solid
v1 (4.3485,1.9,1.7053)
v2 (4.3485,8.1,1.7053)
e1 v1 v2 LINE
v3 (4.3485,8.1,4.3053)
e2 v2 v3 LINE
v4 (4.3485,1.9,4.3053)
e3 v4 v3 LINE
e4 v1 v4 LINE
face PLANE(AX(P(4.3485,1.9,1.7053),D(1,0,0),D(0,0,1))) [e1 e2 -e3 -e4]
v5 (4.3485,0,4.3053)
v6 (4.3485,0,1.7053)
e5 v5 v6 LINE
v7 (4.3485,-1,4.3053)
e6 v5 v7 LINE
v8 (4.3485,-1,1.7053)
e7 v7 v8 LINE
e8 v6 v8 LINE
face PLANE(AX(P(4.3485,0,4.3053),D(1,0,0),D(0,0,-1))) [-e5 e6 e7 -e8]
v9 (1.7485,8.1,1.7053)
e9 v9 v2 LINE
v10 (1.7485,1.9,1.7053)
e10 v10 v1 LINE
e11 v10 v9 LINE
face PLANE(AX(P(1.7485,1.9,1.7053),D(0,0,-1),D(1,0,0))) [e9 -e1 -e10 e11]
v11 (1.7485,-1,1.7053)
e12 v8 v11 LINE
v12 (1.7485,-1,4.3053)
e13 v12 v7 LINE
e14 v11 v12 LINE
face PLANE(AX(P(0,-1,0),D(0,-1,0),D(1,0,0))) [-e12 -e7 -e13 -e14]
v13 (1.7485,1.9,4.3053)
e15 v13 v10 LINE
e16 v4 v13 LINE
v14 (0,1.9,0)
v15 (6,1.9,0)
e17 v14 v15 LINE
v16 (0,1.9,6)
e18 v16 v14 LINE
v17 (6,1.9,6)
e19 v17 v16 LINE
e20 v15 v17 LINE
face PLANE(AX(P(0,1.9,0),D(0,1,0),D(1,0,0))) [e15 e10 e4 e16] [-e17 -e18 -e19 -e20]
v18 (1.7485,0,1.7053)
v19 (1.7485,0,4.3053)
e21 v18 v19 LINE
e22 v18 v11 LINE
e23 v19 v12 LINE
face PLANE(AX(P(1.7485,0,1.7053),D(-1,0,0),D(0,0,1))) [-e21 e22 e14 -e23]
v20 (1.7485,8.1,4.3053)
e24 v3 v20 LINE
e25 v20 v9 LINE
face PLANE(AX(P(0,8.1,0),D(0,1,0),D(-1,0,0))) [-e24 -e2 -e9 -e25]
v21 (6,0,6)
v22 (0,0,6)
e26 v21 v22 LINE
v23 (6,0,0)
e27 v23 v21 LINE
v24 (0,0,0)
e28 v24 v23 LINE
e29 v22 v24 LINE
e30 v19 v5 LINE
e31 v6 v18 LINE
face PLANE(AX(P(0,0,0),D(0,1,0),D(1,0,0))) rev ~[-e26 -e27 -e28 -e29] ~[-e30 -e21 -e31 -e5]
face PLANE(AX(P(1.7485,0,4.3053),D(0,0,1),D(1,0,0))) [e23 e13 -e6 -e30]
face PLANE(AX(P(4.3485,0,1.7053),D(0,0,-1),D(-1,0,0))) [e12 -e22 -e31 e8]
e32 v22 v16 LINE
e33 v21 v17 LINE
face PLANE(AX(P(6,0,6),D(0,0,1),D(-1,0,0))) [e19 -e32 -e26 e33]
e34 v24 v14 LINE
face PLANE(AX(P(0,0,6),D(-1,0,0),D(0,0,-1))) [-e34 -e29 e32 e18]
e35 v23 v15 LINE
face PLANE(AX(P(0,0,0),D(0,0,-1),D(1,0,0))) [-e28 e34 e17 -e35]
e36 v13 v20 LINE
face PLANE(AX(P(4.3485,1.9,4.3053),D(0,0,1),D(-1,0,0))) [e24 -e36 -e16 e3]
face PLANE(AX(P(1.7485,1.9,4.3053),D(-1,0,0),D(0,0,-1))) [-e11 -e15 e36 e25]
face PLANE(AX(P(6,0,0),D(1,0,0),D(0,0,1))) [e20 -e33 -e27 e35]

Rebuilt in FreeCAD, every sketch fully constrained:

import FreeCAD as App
import Part
import Sketcher

V = App.Vector
Q = App.Units.Quantity

doc = App.newDocument("Part")
body = doc.addObject("PartDesign::Body", "Body")

# Sketch on XZ plane
sketch1 = body.newObject("Sketcher::SketchObject", "Sketch")
sketch1.AttachmentSupport = (doc.getObject("XZ_Plane"), [""])
sketch1.MapMode = "FlatFace"
sketch1.addGeometry(Part.LineSegment(V(6, 0, 0), V(0, 0, 0)), False)
sketch1.addGeometry(Part.LineSegment(V(0, 0, 0), V(0, 6, 0)), False)
sketch1.addGeometry(Part.LineSegment(V(0, 6, 0), V(6, 6, 0)), False)
sketch1.addGeometry(Part.LineSegment(V(6, 6, 0), V(6, 0, 0)), False)
sketch1.addConstraint(Sketcher.Constraint("Coincident", 0, 2, 1, 1))
sketch1.addConstraint(Sketcher.Constraint("Coincident", 1, 2, 2, 1))
sketch1.addConstraint(Sketcher.Constraint("Coincident", 2, 2, 3, 1))
sketch1.addConstraint(Sketcher.Constraint("Coincident", 3, 2, 0, 1))
sketch1.addConstraint(Sketcher.Constraint("Horizontal", 0))
sketch1.addConstraint(Sketcher.Constraint("Vertical", 1))
sketch1.addConstraint(Sketcher.Constraint("Horizontal", 2))
sketch1.addConstraint(Sketcher.Constraint("Vertical", 3))
sketch1.addConstraint(Sketcher.Constraint("Coincident", 0, 2, -1, 1))
sketch1.addConstraint(Sketcher.Constraint("Equal", 2, 1))
sketch1.addConstraint(Sketcher.Constraint("DistanceX", 0, 2, 0, 1, Q("6 mm")))
pad1 = body.newObject("PartDesign::Pad", "Pad")
pad1.Profile = sketch1
pad1.Length = 1.9
pad1.Reversed = True

# Sketch on XZ plane
sketch2 = body.newObject("Sketcher::SketchObject", "Sketch001")
sketch2.AttachmentSupport = (doc.getObject("XZ_Plane"), [""])
sketch2.MapMode = "FlatFace"
sketch2.AttachmentOffset = App.Placement(V(0, 0, -1.9), App.Rotation())
sketch2.addGeometry(Part.LineSegment(V(4.3, 1.7, 0), V(1.7, 1.7, 0)), False)
sketch2.addGeometry(Part.LineSegment(V(1.7, 1.7, 0), V(1.7, 4.3, 0)), False)
sketch2.addGeometry(Part.LineSegment(V(1.7, 4.3, 0), V(4.3, 4.3, 0)), False)
sketch2.addGeometry(Part.LineSegment(V(4.3, 4.3, 0), V(4.3, 1.7, 0)), False)
sketch2.addConstraint(Sketcher.Constraint("Coincident", 0, 2, 1, 1))
sketch2.addConstraint(Sketcher.Constraint("Coincident", 1, 2, 2, 1))
sketch2.addConstraint(Sketcher.Constraint("Coincident", 2, 2, 3, 1))
sketch2.addConstraint(Sketcher.Constraint("Coincident", 3, 2, 0, 1))
sketch2.addConstraint(Sketcher.Constraint("Horizontal", 0))
sketch2.addConstraint(Sketcher.Constraint("Vertical", 1))
sketch2.addConstraint(Sketcher.Constraint("Horizontal", 2))
sketch2.addConstraint(Sketcher.Constraint("Vertical", 3))
sketch2.addConstraint(Sketcher.Constraint("Equal", 2, 1))
sketch2.addConstraint(Sketcher.Constraint("DistanceX", 0, 2, 0, 1, Q("2.6 mm")))
sketch2.addConstraint(Sketcher.Constraint("DistanceX", -1, 1, 0, 2, Q("1.7485 mm")))
sketch2.addConstraint(Sketcher.Constraint("DistanceY", -1, 1, 0, 2, Q("1.7053 mm")))
pad2 = body.newObject("PartDesign::Pad", "Pad001")
pad2.Profile = sketch2
pad2.Length = 6.2
pad2.Reversed = True

# Sketch on XZ plane
sketch3 = body.newObject("Sketcher::SketchObject", "Sketch002")
sketch3.AttachmentSupport = (doc.getObject("XZ_Plane"), [""])
sketch3.MapMode = "FlatFace"
sketch3.addGeometry(Part.LineSegment(V(4.3, 4.3, 0), V(1.7, 4.3, 0)), False)
sketch3.addGeometry(Part.LineSegment(V(1.7, 4.3, 0), V(1.7, 1.7, 0)), False)
sketch3.addGeometry(Part.LineSegment(V(1.7, 1.7, 0), V(4.3, 1.7, 0)), False)
sketch3.addGeometry(Part.LineSegment(V(4.3, 1.7, 0), V(4.3, 4.3, 0)), False)
sketch3.addConstraint(Sketcher.Constraint("Coincident", 0, 2, 1, 1))
sketch3.addConstraint(Sketcher.Constraint("Coincident", 1, 2, 2, 1))
sketch3.addConstraint(Sketcher.Constraint("Coincident", 2, 2, 3, 1))
sketch3.addConstraint(Sketcher.Constraint("Coincident", 3, 2, 0, 1))
sketch3.addConstraint(Sketcher.Constraint("Horizontal", 0))
sketch3.addConstraint(Sketcher.Constraint("Vertical", 1))
sketch3.addConstraint(Sketcher.Constraint("Horizontal", 2))
sketch3.addConstraint(Sketcher.Constraint("Vertical", 3))
sketch3.addConstraint(Sketcher.Constraint("Equal", 2, 1))
sketch3.addConstraint(Sketcher.Constraint("DistanceX", 0, 2, 0, 1, Q("2.6 mm")))
sketch3.addConstraint(Sketcher.Constraint("DistanceX", -1, 1, 0, 2, Q("1.7485 mm")))
sketch3.addConstraint(Sketcher.Constraint("DistanceY", -1, 1, 0, 2, Q("4.3053 mm")))
pad3 = body.newObject("PartDesign::Pad", "Pad002")
pad3.Profile = sketch3
pad3.Length = 1

doc.recompute()
